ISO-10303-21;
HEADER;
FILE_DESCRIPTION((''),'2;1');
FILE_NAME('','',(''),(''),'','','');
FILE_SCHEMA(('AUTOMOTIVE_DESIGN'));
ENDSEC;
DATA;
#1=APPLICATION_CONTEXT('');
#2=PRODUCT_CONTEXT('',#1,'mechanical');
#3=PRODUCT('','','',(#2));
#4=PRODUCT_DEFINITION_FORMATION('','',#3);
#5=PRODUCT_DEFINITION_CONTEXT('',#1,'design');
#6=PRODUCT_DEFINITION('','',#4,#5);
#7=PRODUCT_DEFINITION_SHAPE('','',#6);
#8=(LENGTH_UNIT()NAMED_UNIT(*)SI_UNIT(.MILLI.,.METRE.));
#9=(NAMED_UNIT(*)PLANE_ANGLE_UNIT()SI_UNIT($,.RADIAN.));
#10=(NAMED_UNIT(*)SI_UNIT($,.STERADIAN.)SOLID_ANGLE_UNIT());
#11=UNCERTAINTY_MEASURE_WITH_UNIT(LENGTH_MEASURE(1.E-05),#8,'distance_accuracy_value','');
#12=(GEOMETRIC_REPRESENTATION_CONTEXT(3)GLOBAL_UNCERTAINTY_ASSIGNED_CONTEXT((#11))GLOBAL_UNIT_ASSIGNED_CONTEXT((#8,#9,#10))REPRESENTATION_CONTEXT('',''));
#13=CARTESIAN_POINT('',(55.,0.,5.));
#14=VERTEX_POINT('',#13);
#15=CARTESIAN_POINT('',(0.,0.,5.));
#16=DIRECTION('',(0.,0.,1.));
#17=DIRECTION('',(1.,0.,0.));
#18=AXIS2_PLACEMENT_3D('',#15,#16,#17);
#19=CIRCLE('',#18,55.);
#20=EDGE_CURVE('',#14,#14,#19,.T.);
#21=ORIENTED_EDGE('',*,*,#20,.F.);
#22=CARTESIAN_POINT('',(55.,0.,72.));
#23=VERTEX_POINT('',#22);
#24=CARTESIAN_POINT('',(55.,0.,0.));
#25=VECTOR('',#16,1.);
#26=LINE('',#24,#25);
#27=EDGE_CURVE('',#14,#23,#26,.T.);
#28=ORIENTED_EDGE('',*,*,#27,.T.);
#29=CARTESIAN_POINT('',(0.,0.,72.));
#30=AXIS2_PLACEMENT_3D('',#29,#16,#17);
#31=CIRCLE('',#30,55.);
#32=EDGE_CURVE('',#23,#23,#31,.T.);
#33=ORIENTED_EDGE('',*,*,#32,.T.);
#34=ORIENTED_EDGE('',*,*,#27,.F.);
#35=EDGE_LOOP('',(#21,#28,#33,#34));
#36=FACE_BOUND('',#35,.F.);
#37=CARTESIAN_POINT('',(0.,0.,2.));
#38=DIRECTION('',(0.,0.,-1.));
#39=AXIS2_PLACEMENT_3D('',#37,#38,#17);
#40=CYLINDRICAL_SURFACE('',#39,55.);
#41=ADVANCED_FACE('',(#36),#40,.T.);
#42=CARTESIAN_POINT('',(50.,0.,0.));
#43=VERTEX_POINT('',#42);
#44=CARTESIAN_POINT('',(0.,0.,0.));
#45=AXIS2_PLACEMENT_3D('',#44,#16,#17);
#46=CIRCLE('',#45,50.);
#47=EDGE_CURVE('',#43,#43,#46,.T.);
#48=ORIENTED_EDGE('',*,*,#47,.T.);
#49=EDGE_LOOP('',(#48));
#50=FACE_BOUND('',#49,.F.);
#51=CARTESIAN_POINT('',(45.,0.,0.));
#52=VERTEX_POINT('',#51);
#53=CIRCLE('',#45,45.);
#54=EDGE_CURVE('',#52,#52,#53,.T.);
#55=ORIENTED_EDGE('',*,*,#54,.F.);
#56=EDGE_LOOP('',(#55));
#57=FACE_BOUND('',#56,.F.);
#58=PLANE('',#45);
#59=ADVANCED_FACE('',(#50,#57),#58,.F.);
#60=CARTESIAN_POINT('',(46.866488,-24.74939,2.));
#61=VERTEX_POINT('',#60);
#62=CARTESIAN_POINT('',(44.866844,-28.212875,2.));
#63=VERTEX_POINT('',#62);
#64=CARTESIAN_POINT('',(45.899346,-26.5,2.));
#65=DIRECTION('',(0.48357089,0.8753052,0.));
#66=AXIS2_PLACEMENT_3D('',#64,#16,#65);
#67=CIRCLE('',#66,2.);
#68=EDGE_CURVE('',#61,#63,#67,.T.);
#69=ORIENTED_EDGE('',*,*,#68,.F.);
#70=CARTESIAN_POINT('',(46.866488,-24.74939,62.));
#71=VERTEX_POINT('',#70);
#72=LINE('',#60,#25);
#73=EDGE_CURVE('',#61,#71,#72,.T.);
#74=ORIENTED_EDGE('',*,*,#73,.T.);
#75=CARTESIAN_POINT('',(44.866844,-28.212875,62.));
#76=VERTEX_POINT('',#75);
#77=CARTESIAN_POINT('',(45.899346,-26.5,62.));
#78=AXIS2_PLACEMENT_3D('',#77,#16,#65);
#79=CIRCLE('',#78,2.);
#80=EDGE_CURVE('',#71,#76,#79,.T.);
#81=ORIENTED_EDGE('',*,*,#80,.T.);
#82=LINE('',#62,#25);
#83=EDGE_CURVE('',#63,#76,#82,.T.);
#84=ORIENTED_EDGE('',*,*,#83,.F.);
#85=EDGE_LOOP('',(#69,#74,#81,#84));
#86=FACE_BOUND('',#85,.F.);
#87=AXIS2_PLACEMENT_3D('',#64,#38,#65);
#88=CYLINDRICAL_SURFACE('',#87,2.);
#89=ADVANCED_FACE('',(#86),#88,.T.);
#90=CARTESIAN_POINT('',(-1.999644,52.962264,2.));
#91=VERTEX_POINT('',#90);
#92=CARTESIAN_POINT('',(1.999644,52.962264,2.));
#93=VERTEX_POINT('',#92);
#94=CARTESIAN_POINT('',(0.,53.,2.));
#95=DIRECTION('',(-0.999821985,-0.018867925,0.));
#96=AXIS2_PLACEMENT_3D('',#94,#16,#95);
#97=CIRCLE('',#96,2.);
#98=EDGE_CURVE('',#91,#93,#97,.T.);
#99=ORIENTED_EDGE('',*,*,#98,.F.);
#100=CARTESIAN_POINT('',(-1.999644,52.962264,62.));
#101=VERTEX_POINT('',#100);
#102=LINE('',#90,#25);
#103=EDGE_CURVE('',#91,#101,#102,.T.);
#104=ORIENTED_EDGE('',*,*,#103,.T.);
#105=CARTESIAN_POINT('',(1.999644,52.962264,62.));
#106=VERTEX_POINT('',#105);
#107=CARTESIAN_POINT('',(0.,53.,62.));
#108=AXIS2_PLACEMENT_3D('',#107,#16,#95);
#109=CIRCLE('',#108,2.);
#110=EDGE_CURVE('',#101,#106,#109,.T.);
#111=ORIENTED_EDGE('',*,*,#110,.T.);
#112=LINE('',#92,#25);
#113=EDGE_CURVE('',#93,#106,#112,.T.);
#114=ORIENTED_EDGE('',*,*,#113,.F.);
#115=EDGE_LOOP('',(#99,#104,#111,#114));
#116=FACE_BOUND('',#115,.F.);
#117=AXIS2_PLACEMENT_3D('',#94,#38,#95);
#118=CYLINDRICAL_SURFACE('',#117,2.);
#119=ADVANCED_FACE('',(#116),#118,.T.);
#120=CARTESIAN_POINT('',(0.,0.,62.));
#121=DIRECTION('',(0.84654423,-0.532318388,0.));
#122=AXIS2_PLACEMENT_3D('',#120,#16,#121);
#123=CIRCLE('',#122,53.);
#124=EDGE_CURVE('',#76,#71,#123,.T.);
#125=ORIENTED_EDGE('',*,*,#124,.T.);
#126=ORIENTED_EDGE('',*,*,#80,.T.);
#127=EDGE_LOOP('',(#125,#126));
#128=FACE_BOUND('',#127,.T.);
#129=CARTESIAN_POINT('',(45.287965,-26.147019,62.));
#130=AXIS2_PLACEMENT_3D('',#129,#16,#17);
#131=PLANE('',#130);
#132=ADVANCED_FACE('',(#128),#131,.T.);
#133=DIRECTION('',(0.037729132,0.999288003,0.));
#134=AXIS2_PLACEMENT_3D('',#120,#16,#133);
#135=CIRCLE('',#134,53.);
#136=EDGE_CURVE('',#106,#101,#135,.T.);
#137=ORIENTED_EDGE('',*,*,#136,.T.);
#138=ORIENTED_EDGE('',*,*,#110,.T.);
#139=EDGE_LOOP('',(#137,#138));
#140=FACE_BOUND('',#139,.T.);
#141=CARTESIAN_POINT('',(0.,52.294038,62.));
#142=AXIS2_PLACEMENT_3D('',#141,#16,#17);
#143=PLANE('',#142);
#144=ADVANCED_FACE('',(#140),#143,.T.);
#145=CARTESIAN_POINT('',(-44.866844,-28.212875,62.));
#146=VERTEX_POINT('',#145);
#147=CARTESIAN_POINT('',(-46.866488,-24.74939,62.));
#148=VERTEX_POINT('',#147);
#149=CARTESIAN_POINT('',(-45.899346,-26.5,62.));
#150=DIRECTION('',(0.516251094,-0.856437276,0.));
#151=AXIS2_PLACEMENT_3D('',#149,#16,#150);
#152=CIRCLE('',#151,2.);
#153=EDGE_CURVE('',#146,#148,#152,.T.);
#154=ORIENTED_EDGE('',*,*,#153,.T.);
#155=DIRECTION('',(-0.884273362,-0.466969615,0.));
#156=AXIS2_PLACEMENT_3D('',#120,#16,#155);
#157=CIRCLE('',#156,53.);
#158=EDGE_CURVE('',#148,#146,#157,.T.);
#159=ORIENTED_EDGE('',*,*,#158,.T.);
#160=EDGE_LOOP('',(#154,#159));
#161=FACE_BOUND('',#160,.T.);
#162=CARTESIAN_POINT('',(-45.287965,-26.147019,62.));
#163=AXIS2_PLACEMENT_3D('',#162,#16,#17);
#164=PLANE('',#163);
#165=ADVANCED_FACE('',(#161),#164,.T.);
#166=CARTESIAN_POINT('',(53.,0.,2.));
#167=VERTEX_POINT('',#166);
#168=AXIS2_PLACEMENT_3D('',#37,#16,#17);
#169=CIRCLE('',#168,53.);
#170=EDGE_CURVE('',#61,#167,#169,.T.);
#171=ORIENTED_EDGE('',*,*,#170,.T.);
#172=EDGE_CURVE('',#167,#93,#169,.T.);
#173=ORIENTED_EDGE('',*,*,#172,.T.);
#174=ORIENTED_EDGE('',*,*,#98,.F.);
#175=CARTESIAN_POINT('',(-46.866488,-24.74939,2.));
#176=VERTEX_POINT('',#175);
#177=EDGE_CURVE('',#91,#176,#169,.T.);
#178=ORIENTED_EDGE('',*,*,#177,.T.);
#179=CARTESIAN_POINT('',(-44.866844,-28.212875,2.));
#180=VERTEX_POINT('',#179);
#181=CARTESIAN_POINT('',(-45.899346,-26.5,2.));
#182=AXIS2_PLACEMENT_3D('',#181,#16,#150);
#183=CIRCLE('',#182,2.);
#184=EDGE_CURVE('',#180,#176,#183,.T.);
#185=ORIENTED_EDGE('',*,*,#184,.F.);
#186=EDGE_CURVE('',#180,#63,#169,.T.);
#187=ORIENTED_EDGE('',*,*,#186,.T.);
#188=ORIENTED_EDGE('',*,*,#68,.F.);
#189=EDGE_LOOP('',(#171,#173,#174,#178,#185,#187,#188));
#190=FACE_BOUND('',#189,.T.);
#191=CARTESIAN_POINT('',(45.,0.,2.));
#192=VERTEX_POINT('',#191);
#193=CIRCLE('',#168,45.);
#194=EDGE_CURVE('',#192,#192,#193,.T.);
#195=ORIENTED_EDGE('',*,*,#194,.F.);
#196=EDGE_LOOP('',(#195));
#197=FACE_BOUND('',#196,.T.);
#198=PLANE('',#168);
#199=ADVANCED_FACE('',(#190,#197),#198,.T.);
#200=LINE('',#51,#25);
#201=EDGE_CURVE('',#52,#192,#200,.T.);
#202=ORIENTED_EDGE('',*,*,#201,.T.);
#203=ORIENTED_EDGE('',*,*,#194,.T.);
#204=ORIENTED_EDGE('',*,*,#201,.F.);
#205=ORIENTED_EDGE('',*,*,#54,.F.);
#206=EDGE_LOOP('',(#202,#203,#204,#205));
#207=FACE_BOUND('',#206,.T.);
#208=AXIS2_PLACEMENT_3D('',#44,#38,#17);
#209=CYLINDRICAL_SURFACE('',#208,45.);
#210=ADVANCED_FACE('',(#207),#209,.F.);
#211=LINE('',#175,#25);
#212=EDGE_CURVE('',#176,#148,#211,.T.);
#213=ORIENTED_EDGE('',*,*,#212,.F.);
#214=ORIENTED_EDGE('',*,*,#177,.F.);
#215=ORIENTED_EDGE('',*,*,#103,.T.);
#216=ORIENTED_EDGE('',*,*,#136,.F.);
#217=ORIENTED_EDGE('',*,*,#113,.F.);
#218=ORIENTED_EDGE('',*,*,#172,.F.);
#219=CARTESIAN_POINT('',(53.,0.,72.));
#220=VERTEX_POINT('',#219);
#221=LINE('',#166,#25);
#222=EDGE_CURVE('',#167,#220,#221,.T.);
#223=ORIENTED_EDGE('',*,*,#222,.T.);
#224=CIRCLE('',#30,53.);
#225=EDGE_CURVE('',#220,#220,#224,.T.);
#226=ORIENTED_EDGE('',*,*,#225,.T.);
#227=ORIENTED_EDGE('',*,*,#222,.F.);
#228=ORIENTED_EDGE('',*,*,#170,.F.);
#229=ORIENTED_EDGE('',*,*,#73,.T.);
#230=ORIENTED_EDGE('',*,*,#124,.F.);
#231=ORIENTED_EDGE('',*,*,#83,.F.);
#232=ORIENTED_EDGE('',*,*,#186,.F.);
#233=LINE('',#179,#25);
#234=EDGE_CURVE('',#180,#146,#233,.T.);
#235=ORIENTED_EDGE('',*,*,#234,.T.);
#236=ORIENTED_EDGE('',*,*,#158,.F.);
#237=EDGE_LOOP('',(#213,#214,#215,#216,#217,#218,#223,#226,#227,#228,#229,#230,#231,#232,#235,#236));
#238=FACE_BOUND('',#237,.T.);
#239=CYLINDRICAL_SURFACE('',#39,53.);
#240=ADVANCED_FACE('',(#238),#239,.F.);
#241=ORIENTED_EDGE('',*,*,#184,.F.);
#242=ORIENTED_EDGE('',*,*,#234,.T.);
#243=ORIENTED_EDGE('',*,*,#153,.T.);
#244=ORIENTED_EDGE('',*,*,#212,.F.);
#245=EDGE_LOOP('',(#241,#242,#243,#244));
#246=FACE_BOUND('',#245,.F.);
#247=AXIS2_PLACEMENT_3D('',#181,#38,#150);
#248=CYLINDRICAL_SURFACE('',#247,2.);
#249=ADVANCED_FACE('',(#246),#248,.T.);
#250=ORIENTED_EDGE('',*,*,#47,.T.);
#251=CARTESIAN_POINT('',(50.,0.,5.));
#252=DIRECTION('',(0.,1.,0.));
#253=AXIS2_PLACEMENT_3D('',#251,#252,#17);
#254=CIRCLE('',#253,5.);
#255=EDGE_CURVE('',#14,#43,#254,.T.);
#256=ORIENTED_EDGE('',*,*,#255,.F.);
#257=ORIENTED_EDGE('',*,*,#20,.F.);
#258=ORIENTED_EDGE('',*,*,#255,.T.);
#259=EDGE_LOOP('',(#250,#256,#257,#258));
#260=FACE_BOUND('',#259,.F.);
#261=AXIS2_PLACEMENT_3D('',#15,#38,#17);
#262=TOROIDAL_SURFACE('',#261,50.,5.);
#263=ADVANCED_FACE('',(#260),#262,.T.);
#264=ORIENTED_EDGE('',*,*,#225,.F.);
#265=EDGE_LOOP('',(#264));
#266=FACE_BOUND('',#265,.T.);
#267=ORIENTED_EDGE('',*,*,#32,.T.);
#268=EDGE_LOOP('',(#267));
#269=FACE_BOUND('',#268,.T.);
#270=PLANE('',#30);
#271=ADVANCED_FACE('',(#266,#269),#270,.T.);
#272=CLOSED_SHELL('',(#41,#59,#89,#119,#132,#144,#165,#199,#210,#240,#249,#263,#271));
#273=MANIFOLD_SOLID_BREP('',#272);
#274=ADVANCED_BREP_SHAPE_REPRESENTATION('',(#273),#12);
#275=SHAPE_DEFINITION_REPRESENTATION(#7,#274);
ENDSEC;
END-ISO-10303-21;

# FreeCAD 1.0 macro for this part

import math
import FreeCAD as App
import Part
import Sketcher
Q = App.Units.Quantity


def edges_at(feature, points):
    """Names of the edges that pass closest to the given points."""
    edges = feature.Shape.Edges
    near = lambda p: min(range(len(edges)), key=lambda i: edges[i].distToShape(Part.Vertex(*p))[0])
    return sorted({f"Edge{near(p) + 1}" for p in points})

doc = App.newDocument("Part")
body = doc.addObject("PartDesign::Body", "Body")

# Sketch on XY plane
sketch1 = body.newObject("Sketcher::SketchObject", "Sketch")
sketch1.AttachmentSupport = (doc.getObject("XY_Plane"), [""])
sketch1.MapMode = "FlatFace"
sketch1.addGeometry(Part.Circle(App.Vector(0, 0, 0), App.Vector(0, 0, 1), 55), False)
sketch1.addGeometry(Part.Circle(App.Vector(0, 0, 0), App.Vector(0, 0, 1), 45), False)
sketch1.addConstraint(Sketcher.Constraint("Coincident", 0, 3, -1, 1))
sketch1.addConstraint(Sketcher.Constraint("Coincident", 1, 3, -1, 1))
sketch1.addConstraint(Sketcher.Constraint("Diameter", 0, Q("110 mm")))
sketch1.addConstraint(Sketcher.Constraint("Diameter", 1, Q("90 mm")))
pad1 = body.newObject("PartDesign::Pad", "Pad")
pad1.Profile = sketch1
pad1.Length = 2

# Sketch on XY plane
sketch2 = body.newObject("Sketcher::SketchObject", "Sketch001")
sketch2.AttachmentSupport = (doc.getObject("XY_Plane"), [""])
sketch2.MapMode = "FlatFace"
sketch2.AttachmentOffset = App.Placement(App.Vector(0, 0, 2), App.Rotation())
sketch2.addGeometry(Part.Circle(App.Vector(0, 0, 0), App.Vector(0, 0, 1), 55), False)
sketch2.addGeometry(Part.Circle(App.Vector(0, 0, 0), App.Vector(0, 0, 1), 53), False)
sketch2.addConstraint(Sketcher.Constraint("Coincident", 0, 3, -1, 1))
sketch2.addConstraint(Sketcher.Constraint("Coincident", 1, 3, -1, 1))
sketch2.addConstraint(Sketcher.Constraint("Diameter", 0, Q("110 mm")))
sketch2.addConstraint(Sketcher.Constraint("Diameter", 1, Q("106 mm")))
pad2 = body.newObject("PartDesign::Pad", "Pad001")
pad2.Profile = sketch2
pad2.Length = 70

# Sketch on XY plane
sketch3 = body.newObject("Sketcher::SketchObject", "Sketch002")
sketch3.AttachmentSupport = (doc.getObject("XY_Plane"), [""])
sketch3.MapMode = "FlatFace"
sketch3.AttachmentOffset = App.Placement(App.Vector(0, 0, 2), App.Rotation())
sketch3.addGeometry(Part.ArcOfCircle(Part.Circle(App.Vector(0, 0, 0), App.Vector(0, 0, 1), 53), math.radians(87.837767), math.radians(92.162233)), False)
sketch3.addGeometry(Part.ArcOfCircle(Part.Circle(App.Vector(0, 53, 0), App.Vector(0, 0, 1), 2), math.radians(-178.918883), math.radians(-1.081117)), False)
sketch3.addGeometry(Part.ArcOfCircle(Part.Circle(App.Vector(0, 0, 0), App.Vector(0, 0, 1), 53), math.radians(-32.162233), math.radians(-27.837767)), False)
sketch3.addGeometry(Part.ArcOfCircle(Part.Circle(App.Vector(45.899346, -26.5, 0), App.Vector(0, 0, 1), 2), math.radians(61.081117), math.radians(238.918883)), False)
sketch3.addGeometry(Part.ArcOfCircle(Part.Circle(App.Vector(-45.899346, -26.5, 0), App.Vector(0, 0, 1), 2), math.radians(-58.918883), math.radians(118.918883)), False)
sketch3.addGeometry(Part.ArcOfCircle(Part.Circle(App.Vector(0, 0, 0), App.Vector(0, 0, 1), 53), math.radians(-152.162233), math.radians(-147.837767)), False)
sketch3.addConstraint(Sketcher.Constraint("Coincident", 0, 1, 1, 2))
sketch3.addConstraint(Sketcher.Constraint("Coincident", 1, 1, 0, 2))
sketch3.addConstraint(Sketcher.Constraint("Coincident", 2, 1, 3, 2))
sketch3.addConstraint(Sketcher.Constraint("Coincident", 3, 1, 2, 2))
sketch3.addConstraint(Sketcher.Constraint("Coincident", 4, 1, 5, 2))
sketch3.addConstraint(Sketcher.Constraint("Coincident", 5, 1, 4, 2))
sketch3.addConstraint(Sketcher.Constraint("Coincident", 0, 3, -1, 1))
sketch3.addConstraint(Sketcher.Constraint("Coincident", 2, 3, -1, 1))
sketch3.addConstraint(Sketcher.Constraint("Coincident", 5, 3, -1, 1))
sketch3.addConstraint(Sketcher.Constraint("Equal", 0, 2))
sketch3.addConstraint(Sketcher.Constraint("Equal", 1, 3))
sketch3.addConstraint(Sketcher.Constraint("Equal", 3, 4))
sketch3.addConstraint(Sketcher.Constraint("Equal", 2, 5))
sketch3.addConstraint(Sketcher.Constraint("Symmetric", 3, 3, 4, 3, -2))
sketch3.addConstraint(Sketcher.Constraint("PointOnObject", 1, 3, -2))
sketch3.addConstraint(Sketcher.Constraint("Radius", 0, Q("53 mm")))
sketch3.addConstraint(Sketcher.Constraint("Radius", 1, Q("2 mm")))
sketch3.addConstraint(Sketcher.Constraint("DistanceY", -1, 1, 1, 3, Q("53 mm")))
sketch3.addConstraint(Sketcher.Constraint("DistanceY", 3, 3, -1, 1, Q("26.5 mm")))
sketch3.addConstraint(Sketcher.Constraint("DistanceX", -1, 1, 3, 1, Q("46.866488 mm")))
pad3 = body.newObject("PartDesign::Pad", "Pad002")
pad3.Profile = sketch3
pad3.Length = 60
doc.recompute()

fillet = body.newObject("PartDesign::Fillet", "Fillet")
fillet.Base = (pad3, edges_at(pad3, [(-55, 0, 0)]))
fillet.Radius = 5

doc.recompute()
